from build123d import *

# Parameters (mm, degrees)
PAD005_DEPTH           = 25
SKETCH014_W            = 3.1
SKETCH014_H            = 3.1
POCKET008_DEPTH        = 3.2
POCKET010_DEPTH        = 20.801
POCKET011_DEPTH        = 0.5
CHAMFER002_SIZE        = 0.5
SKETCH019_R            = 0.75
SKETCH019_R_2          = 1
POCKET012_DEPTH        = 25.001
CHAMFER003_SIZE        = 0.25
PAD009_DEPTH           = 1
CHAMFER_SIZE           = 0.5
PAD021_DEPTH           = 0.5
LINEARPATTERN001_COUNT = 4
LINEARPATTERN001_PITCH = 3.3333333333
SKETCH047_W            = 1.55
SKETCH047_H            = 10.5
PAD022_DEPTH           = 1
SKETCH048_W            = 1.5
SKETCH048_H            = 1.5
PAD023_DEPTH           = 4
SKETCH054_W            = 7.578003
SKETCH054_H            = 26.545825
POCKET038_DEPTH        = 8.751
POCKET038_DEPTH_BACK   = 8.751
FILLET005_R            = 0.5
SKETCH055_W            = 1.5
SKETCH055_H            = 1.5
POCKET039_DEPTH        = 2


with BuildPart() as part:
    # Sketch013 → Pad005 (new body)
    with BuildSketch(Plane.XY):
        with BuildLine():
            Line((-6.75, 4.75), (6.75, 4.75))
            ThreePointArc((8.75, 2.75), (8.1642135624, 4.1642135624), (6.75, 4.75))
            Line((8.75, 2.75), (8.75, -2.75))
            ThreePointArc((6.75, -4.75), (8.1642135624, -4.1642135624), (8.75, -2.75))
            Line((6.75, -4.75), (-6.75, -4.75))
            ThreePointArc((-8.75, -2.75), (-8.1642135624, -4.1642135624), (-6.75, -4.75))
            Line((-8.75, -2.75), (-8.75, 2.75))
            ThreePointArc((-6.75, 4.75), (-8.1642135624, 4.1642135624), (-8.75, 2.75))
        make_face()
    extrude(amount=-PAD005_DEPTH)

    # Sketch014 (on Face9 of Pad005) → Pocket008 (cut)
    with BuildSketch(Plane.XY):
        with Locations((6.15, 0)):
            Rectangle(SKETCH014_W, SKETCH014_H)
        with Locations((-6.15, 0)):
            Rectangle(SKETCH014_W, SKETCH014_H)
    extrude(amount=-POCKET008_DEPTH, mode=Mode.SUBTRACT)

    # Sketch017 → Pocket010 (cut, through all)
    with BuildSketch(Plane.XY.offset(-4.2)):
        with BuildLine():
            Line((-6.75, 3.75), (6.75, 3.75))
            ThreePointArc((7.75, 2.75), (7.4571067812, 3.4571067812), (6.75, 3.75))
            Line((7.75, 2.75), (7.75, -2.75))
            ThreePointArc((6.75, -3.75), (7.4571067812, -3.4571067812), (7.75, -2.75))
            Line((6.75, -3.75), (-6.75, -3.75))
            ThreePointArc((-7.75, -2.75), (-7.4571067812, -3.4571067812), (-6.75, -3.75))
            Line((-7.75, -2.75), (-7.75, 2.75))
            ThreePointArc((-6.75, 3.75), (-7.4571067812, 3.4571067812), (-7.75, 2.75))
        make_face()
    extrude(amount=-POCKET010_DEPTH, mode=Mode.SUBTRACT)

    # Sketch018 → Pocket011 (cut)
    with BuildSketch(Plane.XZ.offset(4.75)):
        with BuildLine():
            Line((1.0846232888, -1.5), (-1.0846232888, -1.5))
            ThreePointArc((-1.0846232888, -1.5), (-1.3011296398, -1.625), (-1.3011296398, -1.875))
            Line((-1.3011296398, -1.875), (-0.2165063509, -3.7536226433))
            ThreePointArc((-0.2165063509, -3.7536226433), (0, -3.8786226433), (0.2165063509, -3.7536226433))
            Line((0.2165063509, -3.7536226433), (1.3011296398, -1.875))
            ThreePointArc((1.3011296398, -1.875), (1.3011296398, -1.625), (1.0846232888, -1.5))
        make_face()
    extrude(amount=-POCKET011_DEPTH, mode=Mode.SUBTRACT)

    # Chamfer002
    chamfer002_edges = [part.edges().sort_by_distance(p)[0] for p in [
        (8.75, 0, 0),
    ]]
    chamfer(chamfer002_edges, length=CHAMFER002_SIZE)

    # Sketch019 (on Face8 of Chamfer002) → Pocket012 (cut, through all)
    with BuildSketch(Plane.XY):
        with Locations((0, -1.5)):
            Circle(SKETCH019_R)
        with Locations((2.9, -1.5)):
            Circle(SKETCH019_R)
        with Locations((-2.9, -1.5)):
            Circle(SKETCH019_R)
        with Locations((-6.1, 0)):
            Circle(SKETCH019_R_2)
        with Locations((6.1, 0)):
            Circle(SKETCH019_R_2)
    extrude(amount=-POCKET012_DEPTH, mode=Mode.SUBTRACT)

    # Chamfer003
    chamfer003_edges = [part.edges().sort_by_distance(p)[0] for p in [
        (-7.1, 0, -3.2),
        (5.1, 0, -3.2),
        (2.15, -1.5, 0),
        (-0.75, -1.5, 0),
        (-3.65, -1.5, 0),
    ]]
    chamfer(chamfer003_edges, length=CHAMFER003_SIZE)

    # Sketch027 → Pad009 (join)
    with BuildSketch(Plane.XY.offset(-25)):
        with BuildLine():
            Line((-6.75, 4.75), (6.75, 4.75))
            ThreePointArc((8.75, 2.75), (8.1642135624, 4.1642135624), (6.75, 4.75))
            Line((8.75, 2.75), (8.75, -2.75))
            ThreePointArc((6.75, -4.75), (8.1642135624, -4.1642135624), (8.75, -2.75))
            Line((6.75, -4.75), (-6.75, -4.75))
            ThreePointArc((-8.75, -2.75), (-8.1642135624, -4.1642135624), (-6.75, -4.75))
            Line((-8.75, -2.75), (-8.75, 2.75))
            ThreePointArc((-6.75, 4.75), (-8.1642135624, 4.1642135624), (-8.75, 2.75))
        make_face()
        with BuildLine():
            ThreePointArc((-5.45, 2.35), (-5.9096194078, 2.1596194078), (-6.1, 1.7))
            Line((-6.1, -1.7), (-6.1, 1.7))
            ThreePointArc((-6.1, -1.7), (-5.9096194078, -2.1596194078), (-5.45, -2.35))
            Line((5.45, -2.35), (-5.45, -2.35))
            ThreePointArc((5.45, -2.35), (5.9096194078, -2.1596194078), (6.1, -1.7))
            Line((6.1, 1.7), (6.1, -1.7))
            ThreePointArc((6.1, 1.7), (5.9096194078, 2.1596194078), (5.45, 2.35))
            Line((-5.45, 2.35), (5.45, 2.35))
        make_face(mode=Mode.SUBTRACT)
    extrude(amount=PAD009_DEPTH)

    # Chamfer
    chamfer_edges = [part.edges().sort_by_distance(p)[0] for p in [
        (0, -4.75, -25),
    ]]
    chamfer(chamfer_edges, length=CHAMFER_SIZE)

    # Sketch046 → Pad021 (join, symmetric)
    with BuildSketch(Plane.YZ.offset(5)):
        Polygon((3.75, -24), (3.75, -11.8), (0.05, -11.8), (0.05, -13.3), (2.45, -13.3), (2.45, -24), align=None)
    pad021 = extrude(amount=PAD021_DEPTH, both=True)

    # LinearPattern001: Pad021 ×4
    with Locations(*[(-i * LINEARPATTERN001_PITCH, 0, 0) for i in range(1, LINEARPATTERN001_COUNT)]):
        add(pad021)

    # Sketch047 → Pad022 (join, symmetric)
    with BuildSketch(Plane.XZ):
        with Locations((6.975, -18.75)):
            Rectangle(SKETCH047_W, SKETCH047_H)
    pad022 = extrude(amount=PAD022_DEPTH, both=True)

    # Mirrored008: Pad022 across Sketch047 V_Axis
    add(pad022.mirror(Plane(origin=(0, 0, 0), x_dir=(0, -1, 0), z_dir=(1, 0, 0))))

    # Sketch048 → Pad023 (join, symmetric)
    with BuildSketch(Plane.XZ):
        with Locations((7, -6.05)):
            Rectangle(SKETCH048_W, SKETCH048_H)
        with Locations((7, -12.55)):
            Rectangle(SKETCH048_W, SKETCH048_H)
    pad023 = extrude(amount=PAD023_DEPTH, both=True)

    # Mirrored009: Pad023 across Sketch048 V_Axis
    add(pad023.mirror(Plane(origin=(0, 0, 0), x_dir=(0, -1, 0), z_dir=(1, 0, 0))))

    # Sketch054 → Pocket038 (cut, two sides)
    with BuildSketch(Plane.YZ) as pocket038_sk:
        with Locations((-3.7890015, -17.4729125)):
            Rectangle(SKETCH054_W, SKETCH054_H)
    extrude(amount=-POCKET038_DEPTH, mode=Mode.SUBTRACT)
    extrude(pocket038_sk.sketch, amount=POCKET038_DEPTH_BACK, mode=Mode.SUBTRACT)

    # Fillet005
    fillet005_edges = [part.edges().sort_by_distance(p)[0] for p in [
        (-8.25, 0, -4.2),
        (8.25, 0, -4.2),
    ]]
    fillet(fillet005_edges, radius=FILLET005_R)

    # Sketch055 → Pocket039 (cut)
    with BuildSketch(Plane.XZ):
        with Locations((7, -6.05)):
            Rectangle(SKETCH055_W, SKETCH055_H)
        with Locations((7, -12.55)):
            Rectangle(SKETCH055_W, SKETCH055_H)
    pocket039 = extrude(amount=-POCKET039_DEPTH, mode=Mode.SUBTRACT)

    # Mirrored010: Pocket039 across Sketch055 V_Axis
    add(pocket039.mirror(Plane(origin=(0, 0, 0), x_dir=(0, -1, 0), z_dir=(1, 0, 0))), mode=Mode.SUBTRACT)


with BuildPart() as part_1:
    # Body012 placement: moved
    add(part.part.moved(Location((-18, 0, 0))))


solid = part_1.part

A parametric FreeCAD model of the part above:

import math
import FreeCAD as App
import Part
import Sketcher
Q = App.Units.Quantity


def edges_at(feature, points):
    """Names of the edges that pass closest to the given points."""
    edges = feature.Shape.Edges
    near = lambda p: min(range(len(edges)), key=lambda i: edges[i].distToShape(Part.Vertex(*p))[0])
    return sorted({f"Edge{near(p) + 1}" for p in points})

doc = App.newDocument("Part")
params = doc.addObject("Spreadsheet::Sheet", "Params")
for row, (alias, value) in enumerate([
    ("sketch1_radius", "2 mm"),
    ("sketch1_width", "13.5 mm"),
    ("sketch1_height", "5.5 mm"),
    ("pad1_length", "25 mm"),
    ("sketch2_width", "3.1 mm"),
    ("pocket1_length", "3.2 mm"),
    ("sketch3_radius", "1 mm"),
    ("sketch3_width", "13.5 mm"),
    ("sketch3_height", "5.5 mm"),
    ("sketch4_radius", "0.25 mm"),
    ("pocket3_length", "0.5 mm"),
    ("chamfer_size", "0.5 mm"),
    ("sketch5_diameter", "2 mm"),
    ("sketch5_diameter2", "1.5 mm"),
    ("chamfer2_size", "0.25 mm"),
    ("sketch6_radius", "2 mm"),
    ("sketch6_radius2", "0.65 mm"),
    ("sketch6_width", "13.5 mm"),
    ("sketch6_width2", "10.9 mm"),
    ("sketch6_height", "5.5 mm"),
    ("pad2_length", "1 mm"),
    ("chamfer3_size", "0.5 mm"),
    ("sketch7_width", "3.7 mm"),
    ("sketch7_width2", "2.4 mm"),
    ("sketch7_height", "12.2 mm"),
    ("sketch7_height2", "1.5 mm"),
    ("pad3_length", "1 mm"),
    ("linearpattern_pitch", "3.333333 mm"),
    ("sketch8_height", "10.5 mm"),
    ("sketch8_width", "1.55 mm"),
    ("pad4_length", "2 mm"),
    ("sketch9_width", "1.5 mm"),
    ("pad5_length", "8 mm"),
    ("fillet_radius", "0.5 mm"),
    ("sketch11_width", "1.5 mm"),
    ("pocket6_length", "2 mm"),
], start=1):
    params.set(f"A{row}", alias)
    params.set(f"B{row}", "=" + value)
    params.setAlias(f"B{row}", alias)

body = doc.addObject("PartDesign::Body", "Body")

# Sketch on XY plane
sketch1 = doc.addObject("Sketcher::SketchObject", "Sketch")
body.addObject(sketch1)
sketch1.AttachmentSupport = (doc.XY_Plane, [""])
sketch1.MapMode = "FlatFace"
sketch1.addGeometry([
    Part.LineSegment(App.Vector(6.8, 4.8, 0), App.Vector(-6.8, 4.8, 0)),  # 0
    Part.ArcOfCircle(Part.Circle(App.Vector(-6.8, 2.8, 0), App.Vector(0, 0, 1), 2), math.radians(90), math.radians(180)),  # 1
    Part.LineSegment(App.Vector(-8.8, 2.8, 0), App.Vector(-8.8, -2.8, 0)),  # 2
    Part.ArcOfCircle(Part.Circle(App.Vector(-6.8, -2.8, 0), App.Vector(0, 0, 1), 2), math.radians(180), math.radians(270)),  # 3
    Part.LineSegment(App.Vector(-6.8, -4.8, 0), App.Vector(6.8, -4.8, 0)),  # 4
    Part.ArcOfCircle(Part.Circle(App.Vector(6.8, -2.8, 0), App.Vector(0, 0, 1), 2), math.radians(-90), math.radians(0)),  # 5
    Part.LineSegment(App.Vector(8.8, -2.8, 0), App.Vector(8.8, 2.8, 0)),  # 6
    Part.ArcOfCircle(Part.Circle(App.Vector(6.8, 2.8, 0), App.Vector(0, 0, 1), 2), math.radians(0), math.radians(90)),  # 7
], False)
sketch1.addConstraint([
    Sketcher.Constraint("Tangent", 0, 2, 1, 1),
    Sketcher.Constraint("Tangent", 1, 2, 2, 1),
    Sketcher.Constraint("Tangent", 2, 2, 3, 1),
    Sketcher.Constraint("Tangent", 3, 2, 4, 1),
    Sketcher.Constraint("Tangent", 4, 2, 5, 1),
    Sketcher.Constraint("Tangent", 5, 2, 6, 1),
    Sketcher.Constraint("Tangent", 6, 2, 7, 1),
    Sketcher.Constraint("Tangent", 7, 2, 0, 1),
    Sketcher.Constraint("Horizontal", 0),
    Sketcher.Constraint("Vertical", 2),
    Sketcher.Constraint("Horizontal", 4),
    Sketcher.Constraint("Vertical", 6),
    Sketcher.Constraint("Equal", 1, 3),
    Sketcher.Constraint("Equal", 3, 5),
    Sketcher.Constraint("Equal", 5, 7),
    Sketcher.Constraint("Symmetric", 1, 3, 5, 3, -1, 1),
    Sketcher.Constraint("Radius", 1, Q("2 mm")),
    Sketcher.Constraint("DistanceX", 0, 2, 0, 1, Q("13.5 mm")),
    Sketcher.Constraint("DistanceY", 2, 2, 2, 1, Q("5.5 mm")),
])
sketch1.setExpression("Constraints[16]", "Params.sketch1_radius")
sketch1.setExpression("Constraints[17]", "Params.sketch1_width")
sketch1.setExpression("Constraints[18]", "Params.sketch1_height")
pad1 = doc.addObject("PartDesign::Pad", "Pad")
body.addObject(pad1)
pad1.Profile = sketch1
pad1.setExpression("Length", "Params.pad1_length")
pad1.Reversed = True

# Sketch on XY plane
sketch2 = doc.addObject("Sketcher::SketchObject", "Sketch001")
body.addObject(sketch2)
sketch2.AttachmentSupport = (doc.XY_Plane, [""])
sketch2.MapMode = "FlatFace"
sketch2.addGeometry([
    Part.LineSegment(App.Vector(4.6, 1.6, 0), App.Vector(4.6, -1.6, 0)),  # 0
    Part.LineSegment(App.Vector(4.6, -1.6, 0), App.Vector(7.7, -1.6, 0)),  # 1
    Part.LineSegment(App.Vector(7.7, -1.6, 0), App.Vector(7.7, 1.6, 0)),  # 2
    Part.LineSegment(App.Vector(7.7, 1.6, 0), App.Vector(4.6, 1.6, 0)),  # 3
    Part.LineSegment(App.Vector(-7.7, 1.6, 0), App.Vector(-7.7, -1.6, 0)),  # 4
    Part.LineSegment(App.Vector(-7.7, -1.6, 0), App.Vector(-4.6, -1.6, 0)),  # 5
    Part.LineSegment(App.Vector(-4.6, -1.6, 0), App.Vector(-4.6, 1.6, 0)),  # 6
    Part.LineSegment(App.Vector(-4.6, 1.6, 0), App.Vector(-7.7, 1.6, 0)),  # 7
], False)
sketch2.addConstraint([
    Sketcher.Constraint("Coincident", 0, 2, 1, 1),
    Sketcher.Constraint("Coincident", 1, 2, 2, 1),
    Sketcher.Constraint("Coincident", 2, 2, 3, 1),
    Sketcher.Constraint("Coincident", 3, 2, 0, 1),
    Sketcher.Constraint("Coincident", 4, 2, 5, 1),
    Sketcher.Constraint("Coincident", 5, 2, 6, 1),
    Sketcher.Constraint("Coincident", 6, 2, 7, 1),
    Sketcher.Constraint("Coincident", 7, 2, 4, 1),
    Sketcher.Constraint("Vertical", 0),
    Sketcher.Constraint("Horizontal", 1),
    Sketcher.Constraint("Vertical", 2),
    Sketcher.Constraint("Horizontal", 3),
    Sketcher.Constraint("Vertical", 4),
    Sketcher.Constraint("Horizontal", 5),
    Sketcher.Constraint("Vertical", 6),
    Sketcher.Constraint("Horizontal", 7),
    Sketcher.Constraint("Symmetric", 2, 2, 4, 2, -1, 1),
    Sketcher.Constraint("Symmetric", 0, 2, 6, 2, -1, 1),
    Sketcher.Constraint("Horizontal", 1, 2, 4, 2),
    Sketcher.Constraint("Equal", 7, 0),
    Sketcher.Constraint("DistanceX", 1, 1, 1, 2, Q("3.1 mm")),
    Sketcher.Constraint("DistanceX", -1, 1, 0, 2, Q("4.6 mm")),
])
sketch2.setExpression("Constraints[20]", "Params.sketch2_width")
pocket1 = doc.addObject("PartDesign::Pocket", "Pocket")
body.addObject(pocket1)
pocket1.Profile = sketch2
pocket1.setExpression("Length", "Params.pocket1_length")

# Sketch on XY plane
sketch3 = doc.addObject("Sketcher::SketchObject", "Sketch002")
body.addObject(sketch3)
sketch3.AttachmentSupport = (doc.XY_Plane, [""])
sketch3.MapMode = "FlatFace"
sketch3.AttachmentOffset = App.Placement(App.Vector(0, 0, -4.2), App.Rotation())
sketch3.addGeometry([
    Part.LineSegment(App.Vector(6.8, 3.8, 0), App.Vector(-6.8, 3.8, 0)),  # 0
    Part.ArcOfCircle(Part.Circle(App.Vector(-6.8, 2.8, 0), App.Vector(0, 0, 1), 1), math.radians(90), math.radians(180)),  # 1
    Part.LineSegment(App.Vector(-7.8, 2.8, 0), App.Vector(-7.8, -2.8, 0)),  # 2
    Part.ArcOfCircle(Part.Circle(App.Vector(-6.8, -2.8, 0), App.Vector(0, 0, 1), 1), math.radians(180), math.radians(270)),  # 3
    Part.LineSegment(App.Vector(-6.8, -3.8, 0), App.Vector(6.8, -3.8, 0)),  # 4
    Part.ArcOfCircle(Part.Circle(App.Vector(6.8, -2.8, 0), App.Vector(0, 0, 1), 1), math.radians(-90), math.radians(0)),  # 5
    Part.LineSegment(App.Vector(7.8, -2.8, 0), App.Vector(7.8, 2.8, 0)),  # 6
    Part.ArcOfCircle(Part.Circle(App.Vector(6.8, 2.8, 0), App.Vector(0, 0, 1), 1), math.radians(0), math.radians(90)),  # 7
], False)
sketch3.addConstraint([
    Sketcher.Constraint("Tangent", 0, 2, 1, 1),
    Sketcher.Constraint("Tangent", 1, 2, 2, 1),
    Sketcher.Constraint("Tangent", 2, 2, 3, 1),
    Sketcher.Constraint("Tangent", 3, 2, 4, 1),
    Sketcher.Constraint("Tangent", 4, 2, 5, 1),
    Sketcher.Constraint("Tangent", 5, 2, 6, 1),
    Sketcher.Constraint("Tangent", 6, 2, 7, 1),
    Sketcher.Constraint("Tangent", 7, 2, 0, 1),
    Sketcher.Constraint("Horizontal", 0),
    Sketcher.Constraint("Vertical", 2),
    Sketcher.Constraint("Horizontal", 4),
    Sketcher.Constraint("Vertical", 6),
    Sketcher.Constraint("Equal", 1, 3),
    Sketcher.Constraint("Equal", 3, 5),
    Sketcher.Constraint("Equal", 5, 7),
    Sketcher.Constraint("Symmetric", 1, 3, 5, 3, -1, 1),
    Sketcher.Constraint("Radius", 1, Q("1 mm")),
    Sketcher.Constraint("DistanceX", 0, 2, 0, 1, Q("13.5 mm")),
    Sketcher.Constraint("DistanceY", 2, 2, 2, 1, Q("5.5 mm")),
])
sketch3.setExpression("Constraints[16]", "Params.sketch3_radius")
sketch3.setExpression("Constraints[17]", "Params.sketch3_width")
sketch3.setExpression("Constraints[18]", "Params.sketch3_height")
pocket2 = doc.addObject("PartDesign::Pocket", "Pocket001")
body.addObject(pocket2)
pocket2.Profile = sketch3
pocket2.Type = "ThroughAll"

# Sketch on XZ plane
sketch4 = doc.addObject("Sketcher::SketchObject", "Sketch003")
body.addObject(sketch4)
sketch4.AttachmentSupport = (doc.XZ_Plane, [""])
sketch4.MapMode = "FlatFace"
sketch4.AttachmentOffset = App.Placement(App.Vector(0, 0, 4.75), App.Rotation())
sketch4.addGeometry([
    Part.LineSegment(App.Vector(1.08, -1.5, 0), App.Vector(-1.08, -1.5, 0)),  # 0
    Part.ArcOfCircle(Part.Circle(App.Vector(-1.08, -1.75, 0), App.Vector(0, 0, 1), 0.25), math.radians(90), math.radians(210)),  # 1
    Part.LineSegment(App.Vector(-1.3, -1.88, 0), App.Vector(-0.22, -3.75, 0)),  # 2
    Part.ArcOfCircle(Part.Circle(App.Vector(0, -3.63, 0), App.Vector(0, 0, 1), 0.25), math.radians(-150), math.radians(-30)),  # 3
    Part.LineSegment(App.Vector(0.22, -3.75, 0), App.Vector(1.3, -1.88, 0)),  # 4
    Part.ArcOfCircle(Part.Circle(App.Vector(1.08, -1.75, 0), App.Vector(0, 0, 1), 0.25), math.radians(-30), math.radians(90)),  # 5
], False)
sketch4.addConstraint([
    Sketcher.Constraint("Tangent", 0, 2, 1, 1),
    Sketcher.Constraint("Tangent", 1, 2, 2, 1),
    Sketcher.Constraint("Tangent", 2, 2, 3, 1),
    Sketcher.Constraint("Tangent", 3, 2, 4, 1),
    Sketcher.Constraint("Tangent", 4, 2, 5, 1),
    Sketcher.Constraint("Tangent", 5, 2, 0, 1),
    Sketcher.Constraint("Horizontal", 0),
    Sketcher.Constraint("Equal", 1, 3),
    Sketcher.Constraint("Equal", 3, 5),
    Sketcher.Constraint("Symmetric", 2, 2, 3, 2, -2),
    Sketcher.Constraint("Angle", 2, Q("-60 deg")),
    Sketcher.Constraint("Radius", 1, Q("0.25 mm")),
    Sketcher.Constraint("DistanceY", 0, 2, -1, 1, Q("1.5 mm")),
    Sketcher.Constraint("DistanceX", 0, 2, 0, 1, Q("2.169247 mm")),
])
sketch4.setExpression("Constraints[11]", "Params.sketch4_radius")
pocket3 = doc.addObject("PartDesign::Pocket", "Pocket002")
body.addObject(pocket3)
pocket3.Profile = sketch4
pocket3.setExpression("Length", "Params.pocket3_length")
doc.recompute()

chamfer = doc.addObject("PartDesign::Chamfer", "Chamfer")
body.addObject(chamfer)
chamfer.Base = (pocket3, edges_at(pocket3, [(8.75, 0, 0)]))
chamfer.setExpression("Size", "Params.chamfer_size")

# Sketch on XY plane
sketch5 = doc.addObject("Sketcher::SketchObject", "Sketch004")
body.addObject(sketch5)
sketch5.AttachmentSupport = (doc.XY_Plane, [""])
sketch5.MapMode = "FlatFace"
sketch5.addGeometry([
    Part.Circle(App.Vector(0, -1.5, 0), App.Vector(0, 0, 1), 0.8),  # 0
    Part.Circle(App.Vector(2.9, -1.5, 0), App.Vector(0, 0, 1), 0.8),  # 1
    Part.Circle(App.Vector(-2.9, -1.5, 0), App.Vector(0, 0, 1), 0.8),  # 2
    Part.Circle(App.Vector(-6.1, 0, 0), App.Vector(0, 0, 1), 1),  # 3
    Part.Circle(App.Vector(6.1, 0, 0), App.Vector(0, 0, 1), 1),  # 4
], False)
sketch5.addConstraint([
    Sketcher.Constraint("Equal", 0, 1),
    Sketcher.Constraint("Equal", 1, 2),
    Sketcher.Constraint("Equal", 3, 4),
    Sketcher.Constraint("Symmetric", 3, 3, 4, 3, -1, 1),
    Sketcher.Constraint("Symmetric", 1, 3, 2, 3, -2),
    Sketcher.Constraint("PointOnObject", 0, 3, -2),
    Sketcher.Constraint("PointOnObject", 3, 3, -1),
    Sketcher.Constraint("Horizontal", 0, 3, 1, 3),
    Sketcher.Constraint("Diameter", 3, Q("2 mm")),
    Sketcher.Constraint("Diameter", 0, Q("1.5 mm")),
    Sketcher.Constraint("DistanceX", 3, 3, 1, 3, Q("9 mm")),
    Sketcher.Constraint("DistanceY", 0, 3, -1, 1, Q("1.5 mm")),
    Sketcher.Constraint("DistanceX", -1, 1, 1, 3, Q("2.9 mm")),
])
sketch5.setExpression("Constraints[8]", "Params.sketch5_diameter")
sketch5.setExpression("Constraints[9]", "Params.sketch5_diameter2")
pocket4 = doc.addObject("PartDesign::Pocket", "Pocket003")
body.addObject(pocket4)
pocket4.Profile = sketch5
pocket4.Type = "ThroughAll"
doc.recompute()

chamfer2 = doc.addObject("PartDesign::Chamfer", "Chamfer001")
body.addObject(chamfer2)
chamfer2.Base = (pocket4, edges_at(pocket4, [
    (-7.1, 0, -3.2),
    (5.1, 0, -3.2),
    (2.15, -1.5, 0),
    (-0.75, -1.5, 0),
    (-3.65, -1.5, 0),
]))
chamfer2.setExpression("Size", "Params.chamfer2_size")

# Sketch on XY plane
sketch6 = doc.addObject("Sketcher::SketchObject", "Sketch005")
body.addObject(sketch6)
sketch6.AttachmentSupport = (doc.XY_Plane, [""])
sketch6.MapMode = "FlatFace"
sketch6.AttachmentOffset = App.Placement(App.Vector(0, 0, -25), App.Rotation())
sketch6.addGeometry([
    Part.LineSegment(App.Vector(6.8, 4.8, 0), App.Vector(-6.8, 4.8, 0)),  # 0
    Part.ArcOfCircle(Part.Circle(App.Vector(-6.8, 2.8, 0), App.Vector(0, 0, 1), 2), math.radians(90), math.radians(180)),  # 1
    Part.LineSegment(App.Vector(-8.8, 2.8, 0), App.Vector(-8.8, -2.8, 0)),  # 2
    Part.ArcOfCircle(Part.Circle(App.Vector(-6.8, -2.8, 0), App.Vector(0, 0, 1), 2), math.radians(180), math.radians(270)),  # 3
    Part.LineSegment(App.Vector(-6.8, -4.8, 0), App.Vector(6.8, -4.8, 0)),  # 4
    Part.ArcOfCircle(Part.Circle(App.Vector(6.8, -2.8, 0), App.Vector(0, 0, 1), 2), math.radians(-90), math.radians(0)),  # 5
    Part.LineSegment(App.Vector(8.8, -2.8, 0), App.Vector(8.8, 2.8, 0)),  # 6
    Part.ArcOfCircle(Part.Circle(App.Vector(6.8, 2.8, 0), App.Vector(0, 0, 1), 2), math.radians(0), math.radians(90)),  # 7
    Part.LineSegment(App.Vector(-5.5, 2.4, 0), App.Vector(5.5, 2.4, 0)),  # 8
    Part.ArcOfCircle(Part.Circle(App.Vector(5.5, 1.7, 0), App.Vector(0, 0, 1), 0.7), math.radians(0), math.radians(90)),  # 9
    Part.LineSegment(App.Vector(6.1, 1.7, 0), App.Vector(6.1, -1.7, 0)),  # 10
    Part.ArcOfCircle(Part.Circle(App.Vector(5.5, -1.7, 0), App.Vector(0, 0, 1), 0.7), math.radians(-90), math.radians(0)),  # 11
    Part.LineSegment(App.Vector(5.5, -2.4, 0), App.Vector(-5.5, -2.4, 0)),  # 12
    Part.ArcOfCircle(Part.Circle(App.Vector(-5.5, -1.7, 0), App.Vector(0, 0, 1), 0.7), math.radians(180), math.radians(270)),  # 13
    Part.LineSegment(App.Vector(-6.1, -1.7, 0), App.Vector(-6.1, 1.7, 0)),  # 14
    Part.ArcOfCircle(Part.Circle(App.Vector(-5.5, 1.7, 0), App.Vector(0, 0, 1), 0.7), math.radians(90), math.radians(180)),  # 15
], False)
sketch6.addConstraint([
    Sketcher.Constraint("Tangent", 0, 2, 1, 1),
    Sketcher.Constraint("Tangent", 1, 2, 2, 1),
    Sketcher.Constraint("Tangent", 2, 2, 3, 1),
    Sketcher.Constraint("Tangent", 3, 2, 4, 1),
    Sketcher.Constraint("Tangent", 4, 2, 5, 1),
    Sketcher.Constraint("Tangent", 5, 2, 6, 1),
    Sketcher.Constraint("Tangent", 6, 2, 7, 1),
    Sketcher.Constraint("Tangent", 7, 2, 0, 1),
    Sketcher.Constraint("Tangent", 8, 2, 9, 2),
    Sketcher.Constraint("Tangent", 9, 1, 10, 1),
    Sketcher.Constraint("Tangent", 10, 2, 11, 2),
    Sketcher.Constraint("Tangent", 11, 1, 12, 1),
    Sketcher.Constraint("Tangent", 12, 2, 13, 2),
    Sketcher.Constraint("Tangent", 13, 1, 14, 1),
    Sketcher.Constraint("Tangent", 14, 2, 15, 2),
    Sketcher.Constraint("Tangent", 15, 1, 8, 1),
    Sketcher.Constraint("Horizontal", 0),
    Sketcher.Constraint("Vertical", 2),
    Sketcher.Constraint("Horizontal", 4),
    Sketcher.Constraint("Vertical", 6),
    Sketcher.Constraint("Horizontal", 8),
    Sketcher.Constraint("Vertical", 10),
    Sketcher.Constraint("Horizontal", 12),
    Sketcher.Constraint("Vertical", 14),
    Sketcher.Constraint("Equal", 1, 3),
    Sketcher.Constraint("Equal", 3, 5),
    Sketcher.Constraint("Equal", 5, 7),
    Sketcher.Constraint("Equal", 9, 11),
    Sketcher.Constraint("Equal", 11, 13),
    Sketcher.Constraint("Equal", 13, 15),
    Sketcher.Constraint("Symmetric", 1, 3, 5, 3, -1, 1),
    Sketcher.Constraint("Symmetric", 9, 3, 13, 3, -1, 1),
    Sketcher.Constraint("Radius", 1, Q("2 mm")),
    Sketcher.Constraint("Radius", 9, Q("0.65 mm")),
    Sketcher.Constraint("DistanceX", 0, 2, 0, 1, Q("13.5 mm")),
    Sketcher.Constraint("DistanceX", 8, 1, 8, 2, Q("10.9 mm")),
    Sketcher.Constraint("DistanceY", 2, 2, 2, 1, Q("5.5 mm")),
    Sketcher.Constraint("DistanceY", 10, 2, 10, 1, Q("3.4 mm")),
])
sketch6.setExpression("Constraints[32]", "Params.sketch6_radius")
sketch6.setExpression("Constraints[33]", "Params.sketch6_radius2")
sketch6.setExpression("Constraints[34]", "Params.sketch6_width")
sketch6.setExpression("Constraints[35]", "Params.sketch6_width2")
sketch6.setExpression("Constraints[36]", "Params.sketch6_height")
pad2 = doc.addObject("PartDesign::Pad", "Pad001")
body.addObject(pad2)
pad2.Profile = sketch6
pad2.setExpression("Length", "Params.pad2_length")
doc.recompute()

chamfer3 = doc.addObject("PartDesign::Chamfer", "Chamfer002")
body.addObject(chamfer3)
chamfer3.Base = (pad2, edges_at(pad2, [(0, -4.75, -25)]))
chamfer3.setExpression("Size", "Params.chamfer3_size")

# Sketch on YZ plane
sketch7 = doc.addObject("Sketcher::SketchObject", "Sketch006")
body.addObject(sketch7)
sketch7.AttachmentSupport = (doc.YZ_Plane, [""])
sketch7.MapMode = "FlatFace"
sketch7.AttachmentOffset = App.Placement(App.Vector(0, 0, 5), App.Rotation())
sketch7.addGeometry([
    Part.LineSegment(App.Vector(3.8, -24, 0), App.Vector(3.8, -11.8, 0)),  # 0
    Part.LineSegment(App.Vector(3.8, -11.8, 0), App.Vector(0.1, -11.8, 0)),  # 1
    Part.LineSegment(App.Vector(0.1, -11.8, 0), App.Vector(0.1, -13.3, 0)),  # 2
    Part.LineSegment(App.Vector(0.1, -13.3, 0), App.Vector(2.5, -13.3, 0)),  # 3
    Part.LineSegment(App.Vector(2.5, -13.3, 0), App.Vector(2.5, -24, 0)),  # 4
    Part.LineSegment(App.Vector(2.5, -24, 0), App.Vector(3.8, -24, 0)),  # 5
], False)
sketch7.addConstraint([
    Sketcher.Constraint("Coincident", 0, 2, 1, 1),
    Sketcher.Constraint("Coincident", 1, 2, 2, 1),
    Sketcher.Constraint("Coincident", 2, 2, 3, 1),
    Sketcher.Constraint("Coincident", 3, 2, 4, 1),
    Sketcher.Constraint("Coincident", 4, 2, 5, 1),
    Sketcher.Constraint("Coincident", 5, 2, 0, 1),
    Sketcher.Constraint("Vertical", 0),
    Sketcher.Constraint("Horizontal", 1),
    Sketcher.Constraint("Vertical", 2),
    Sketcher.Constraint("Horizontal", 3),
    Sketcher.Constraint("Vertical", 4),
    Sketcher.Constraint("Horizontal", 5),
    Sketcher.Constraint("DistanceX", 1, 2, 1, 1, Q("3.7 mm")),
    Sketcher.Constraint("DistanceX", 3, 1, 3, 2, Q("2.4 mm")),
    Sketcher.Constraint("DistanceY", 0, 1, 0, 2, Q("12.2 mm")),
    Sketcher.Constraint("DistanceY", 2, 2, 2, 1, Q("1.5 mm")),
    Sketcher.Constraint("DistanceY", 4, 2, -1, 1, Q("24 mm")),
    Sketcher.Constraint("DistanceX", -1, 1, 0, 2, Q("3.75 mm")),
])
sketch7.setExpression("Constraints[12]", "Params.sketch7_width")
sketch7.setExpression("Constraints[13]", "Params.sketch7_width2")
sketch7.setExpression("Constraints[14]", "Params.sketch7_height")
sketch7.setExpression("Constraints[15]", "Params.sketch7_height2")
pad3 = doc.addObject("PartDesign::Pad", "Pad002")
body.addObject(pad3)
pad3.Profile = sketch7
pad3.setExpression("Length", "Params.pad3_length")
pad3.Midplane = True
doc.recompute()

linearpattern = doc.addObject("PartDesign::LinearPattern", "LinearPattern")
body.addObject(linearpattern)
linearpattern.Originals = [pad3]
linearpattern.Direction = (doc.X_Axis, [""])
linearpattern.Mode = "offset"
linearpattern.setExpression("Offset", "Params.linearpattern_pitch")
linearpattern.Occurrences = 4
linearpattern.Reversed = True
body.Tip = linearpattern

# Sketch on XZ plane
sketch8 = doc.addObject("Sketcher::SketchObject", "Sketch007")
body.addObject(sketch8)
sketch8.AttachmentSupport = (doc.XZ_Plane, [""])
sketch8.MapMode = "FlatFace"
sketch8.addGeometry([
    Part.LineSegment(App.Vector(6.2, -13.5, 0), App.Vector(6.2, -24, 0)),
    Part.LineSegment(App.Vector(6.2, -24, 0), App.Vector(7.8, -24, 0)),
    Part.LineSegment(App.Vector(7.8, -24, 0), App.Vector(7.8, -13.5, 0)),
    Part.LineSegment(App.Vector(7.8, -13.5, 0), App.Vector(6.2, -13.5, 0)),
], False)
sketch8.addConstraint([
    Sketcher.Constraint("Coincident", 0, 2, 1, 1),
    Sketcher.Constraint("Coincident", 1, 2, 2, 1),
    Sketcher.Constraint("Coincident", 2, 2, 3, 1),
    Sketcher.Constraint("Coincident", 3, 2, 0, 1),
    Sketcher.Constraint("Vertical", 0),
    Sketcher.Constraint("Horizontal", 1),
    Sketcher.Constraint("Vertical", 2),
    Sketcher.Constraint("Horizontal", 3),
    Sketcher.Constraint("DistanceY", 0, 2, 0, 1, Q("10.5 mm")),
    Sketcher.Constraint("DistanceY", 0, 2, -1, 1, Q("24 mm")),
    Sketcher.Constraint("DistanceX", 1, 1, 1, 2, Q("1.55 mm")),
    Sketcher.Constraint("DistanceX", -1, 1, 0, 2, Q("6.2 mm")),
])
sketch8.setExpression("Constraints[8]", "Params.sketch8_height")
sketch8.setExpression("Constraints[10]", "Params.sketch8_width")
pad4 = doc.addObject("PartDesign::Pad", "Pad003")
body.addObject(pad4)
pad4.Profile = sketch8
pad4.setExpression("Length", "Params.pad4_length")
pad4.Midplane = True
doc.recompute()

mirrored = doc.addObject("PartDesign::Mirrored", "Mirrored")
body.addObject(mirrored)
mirrored.Originals = [pad4]
mirrored.MirrorPlane = (doc.YZ_Plane, [""])
body.Tip = mirrored

# Sketch on XZ plane
sketch9 = doc.addObject("Sketcher::SketchObject", "Sketch008")
body.addObject(sketch9)
sketch9.AttachmentSupport = (doc.XZ_Plane, [""])
sketch9.MapMode = "FlatFace"
sketch9.addGeometry([
    Part.LineSegment(App.Vector(6.2, -5.3, 0), App.Vector(6.2, -6.8, 0)),  # 0
    Part.LineSegment(App.Vector(6.2, -6.8, 0), App.Vector(7.8, -6.8, 0)),  # 1
    Part.LineSegment(App.Vector(7.8, -6.8, 0), App.Vector(7.8, -5.3, 0)),  # 2
    Part.LineSegment(App.Vector(7.8, -5.3, 0), App.Vector(6.2, -5.3, 0)),  # 3
    Part.LineSegment(App.Vector(6.2, -11.8, 0), App.Vector(6.2, -13.3, 0)),  # 4
    Part.LineSegment(App.Vector(6.2, -13.3, 0), App.Vector(7.8, -13.3, 0)),  # 5
    Part.LineSegment(App.Vector(7.8, -13.3, 0), App.Vector(7.8, -11.8, 0)),  # 6
    Part.LineSegment(App.Vector(7.8, -11.8, 0), App.Vector(6.2, -11.8, 0)),  # 7
], False)
sketch9.addConstraint([
    Sketcher.Constraint("Coincident", 0, 2, 1, 1),
    Sketcher.Constraint("Coincident", 1, 2, 2, 1),
    Sketcher.Constraint("Coincident", 2, 2, 3, 1),
    Sketcher.Constraint("Coincident", 3, 2, 0, 1),
    Sketcher.Constraint("Coincident", 4, 2, 5, 1),
    Sketcher.Constraint("Coincident", 5, 2, 6, 1),
    Sketcher.Constraint("Coincident", 6, 2, 7, 1),
    Sketcher.Constraint("Coincident", 7, 2, 4, 1),
    Sketcher.Constraint("Vertical", 0),
    Sketcher.Constraint("Horizontal", 1),
    Sketcher.Constraint("Vertical", 2),
    Sketcher.Constraint("Horizontal", 3),
    Sketcher.Constraint("Vertical", 4),
    Sketcher.Constraint("Horizontal", 5),
    Sketcher.Constraint("Vertical", 6),
    Sketcher.Constraint("Horizontal", 7),
    Sketcher.Constraint("Vertical", 3, 2, 4, 2),
    Sketcher.Constraint("Vertical", 2, 2, 5, 2),
    Sketcher.Constraint("Equal", 7, 0),
    Sketcher.Constraint("Equal", 2, 4),
    Sketcher.Constraint("DistanceX", 1, 1, 1, 2, Q("1.5 mm")),
    Sketcher.Constraint("DistanceY", 4, 2, 3, 2, Q("8 mm")),
    Sketcher.Constraint("DistanceY", 0, 2, -1, 1, Q("6.8 mm")),
    Sketcher.Constraint("DistanceX", -1, 1, 0, 2, Q("6.25 mm")),
])
sketch9.setExpression("Constraints[20]", "Params.sketch9_width")
pad5 = doc.addObject("PartDesign::Pad", "Pad004")
body.addObject(pad5)
pad5.Profile = sketch9
pad5.setExpression("Length", "Params.pad5_length")
pad5.Midplane = True
doc.recompute()

mirrored2 = doc.addObject("PartDesign::Mirrored", "Mirrored001")
body.addObject(mirrored2)
mirrored2.Originals = [pad5]
mirrored2.MirrorPlane = (doc.YZ_Plane, [""])
body.Tip = mirrored2

# Sketch on YZ plane
sketch10 = doc.addObject("Sketcher::SketchObject", "Sketch009")
body.addObject(sketch10)
sketch10.AttachmentSupport = (doc.YZ_Plane, [""])
sketch10.MapMode = "FlatFace"
sketch10.addGeometry([
    Part.LineSegment(App.Vector(-8, -4, 0), App.Vector(-8, -31, 0)),
    Part.LineSegment(App.Vector(-8, -31, 0), App.Vector(0, -31, 0)),
    Part.LineSegment(App.Vector(0, -31, 0), App.Vector(0, -4, 0)),
    Part.LineSegment(App.Vector(0, -4, 0), App.Vector(-8, -4, 0)),
], False)
sketch10.addConstraint([
    Sketcher.Constraint("Coincident", 0, 2, 1, 1),
    Sketcher.Constraint("Coincident", 1, 2, 2, 1),
    Sketcher.Constraint("Coincident", 2, 2, 3, 1),
    Sketcher.Constraint("Coincident", 3, 2, 0, 1),
    Sketcher.Constraint("Vertical", 0),
    Sketcher.Constraint("Horizontal", 1),
    Sketcher.Constraint("Vertical", 2),
    Sketcher.Constraint("Horizontal", 3),
    Sketcher.Constraint("PointOnObject", 1, 2, -2),
    Sketcher.Constraint("DistanceY", 2, 2, -1, 1, Q("4.2 mm")),
    Sketcher.Constraint("DistanceX", 1, 1, 1, 2, Q("7.578003 mm")),
    Sketcher.Constraint("DistanceY", 0, 2, 0, 1, Q("26.545825 mm")),
])
pocket5 = doc.addObject("PartDesign::Pocket", "Pocket004")
body.addObject(pocket5)
pocket5.Profile = sketch10
pocket5.Type = "ThroughAll"
pocket5.Midplane = True
doc.recompute()

fillet = doc.addObject("PartDesign::Fillet", "Fillet")
body.addObject(fillet)
fillet.Base = (pocket5, edges_at(pocket5, [(-8.25, 0, -4.2), (8.25, 0, -4.2)]))
fillet.setExpression("Radius", "Params.fillet_radius")

# Sketch on XZ plane
sketch11 = doc.addObject("Sketcher::SketchObject", "Sketch010")
body.addObject(sketch11)
sketch11.AttachmentSupport = (doc.XZ_Plane, [""])
sketch11.MapMode = "FlatFace"
sketch11.addGeometry([
    Part.LineSegment(App.Vector(6.2, -5.3, 0), App.Vector(6.2, -6.8, 0)),  # 0
    Part.LineSegment(App.Vector(6.2, -6.8, 0), App.Vector(7.8, -6.8, 0)),  # 1
    Part.LineSegment(App.Vector(7.8, -6.8, 0), App.Vector(7.8, -5.3, 0)),  # 2
    Part.LineSegment(App.Vector(7.8, -5.3, 0), App.Vector(6.2, -5.3, 0)),  # 3
    Part.LineSegment(App.Vector(6.2, -11.8, 0), App.Vector(6.2, -13.3, 0)),  # 4
    Part.LineSegment(App.Vector(6.2, -13.3, 0), App.Vector(7.8, -13.3, 0)),  # 5
    Part.LineSegment(App.Vector(7.8, -13.3, 0), App.Vector(7.8, -11.8, 0)),  # 6
    Part.LineSegment(App.Vector(7.8, -11.8, 0), App.Vector(6.2, -11.8, 0)),  # 7
], False)
sketch11.addConstraint([
    Sketcher.Constraint("Coincident", 0, 2, 1, 1),
    Sketcher.Constraint("Coincident", 1, 2, 2, 1),
    Sketcher.Constraint("Coincident", 2, 2, 3, 1),
    Sketcher.Constraint("Coincident", 3, 2, 0, 1),
    Sketcher.Constraint("Coincident", 4, 2, 5, 1),
    Sketcher.Constraint("Coincident", 5, 2, 6, 1),
    Sketcher.Constraint("Coincident", 6, 2, 7, 1),
    Sketcher.Constraint("Coincident", 7, 2, 4, 1),
    Sketcher.Constraint("Vertical", 0),
    Sketcher.Constraint("Horizontal", 1),
    Sketcher.Constraint("Vertical", 2),
    Sketcher.Constraint("Horizontal", 3),
    Sketcher.Constraint("Vertical", 4),
    Sketcher.Constraint("Horizontal", 5),
    Sketcher.Constraint("Vertical", 6),
    Sketcher.Constraint("Horizontal", 7),
    Sketcher.Constraint("Vertical", 3, 2, 4, 2),
    Sketcher.Constraint("Vertical", 2, 2, 5, 2),
    Sketcher.Constraint("Equal", 7, 0),
    Sketcher.Constraint("Equal", 2, 4),
    Sketcher.Constraint("DistanceX", 1, 1, 1, 2, Q("1.5 mm")),
    Sketcher.Constraint("DistanceY", 4, 2, 3, 2, Q("8 mm")),
    Sketcher.Constraint("DistanceY", 0, 2, -1, 1, Q("6.8 mm")),
    Sketcher.Constraint("DistanceX", -1, 1, 0, 2, Q("6.25 mm")),
])
sketch11.setExpression("Constraints[20]", "Params.sketch11_width")
pocket6 = doc.addObject("PartDesign::Pocket", "Pocket005")
body.addObject(pocket6)
pocket6.Profile = sketch11
pocket6.setExpression("Length", "Params.pocket6_length")
doc.recompute()

mirrored3 = doc.addObject("PartDesign::Mirrored", "Mirrored002")
body.addObject(mirrored3)
mirrored3.Originals = [pocket6]
mirrored3.MirrorPlane = (doc.YZ_Plane, [""])
body.Tip = mirrored3
body2 = doc.addObject("PartDesign::Body", "Body001")
doc.recompute()

body.Placement = App.Placement(App.Vector(-18, 0, 0), App.Rotation(App.Vector(0, 0, 1), 0))
boolean = doc.addObject("PartDesign::Boolean", "Boolean")
body2.addObject(boolean)
boolean.Type = "Fuse"
boolean.addObjects([body])

doc.recompute()
